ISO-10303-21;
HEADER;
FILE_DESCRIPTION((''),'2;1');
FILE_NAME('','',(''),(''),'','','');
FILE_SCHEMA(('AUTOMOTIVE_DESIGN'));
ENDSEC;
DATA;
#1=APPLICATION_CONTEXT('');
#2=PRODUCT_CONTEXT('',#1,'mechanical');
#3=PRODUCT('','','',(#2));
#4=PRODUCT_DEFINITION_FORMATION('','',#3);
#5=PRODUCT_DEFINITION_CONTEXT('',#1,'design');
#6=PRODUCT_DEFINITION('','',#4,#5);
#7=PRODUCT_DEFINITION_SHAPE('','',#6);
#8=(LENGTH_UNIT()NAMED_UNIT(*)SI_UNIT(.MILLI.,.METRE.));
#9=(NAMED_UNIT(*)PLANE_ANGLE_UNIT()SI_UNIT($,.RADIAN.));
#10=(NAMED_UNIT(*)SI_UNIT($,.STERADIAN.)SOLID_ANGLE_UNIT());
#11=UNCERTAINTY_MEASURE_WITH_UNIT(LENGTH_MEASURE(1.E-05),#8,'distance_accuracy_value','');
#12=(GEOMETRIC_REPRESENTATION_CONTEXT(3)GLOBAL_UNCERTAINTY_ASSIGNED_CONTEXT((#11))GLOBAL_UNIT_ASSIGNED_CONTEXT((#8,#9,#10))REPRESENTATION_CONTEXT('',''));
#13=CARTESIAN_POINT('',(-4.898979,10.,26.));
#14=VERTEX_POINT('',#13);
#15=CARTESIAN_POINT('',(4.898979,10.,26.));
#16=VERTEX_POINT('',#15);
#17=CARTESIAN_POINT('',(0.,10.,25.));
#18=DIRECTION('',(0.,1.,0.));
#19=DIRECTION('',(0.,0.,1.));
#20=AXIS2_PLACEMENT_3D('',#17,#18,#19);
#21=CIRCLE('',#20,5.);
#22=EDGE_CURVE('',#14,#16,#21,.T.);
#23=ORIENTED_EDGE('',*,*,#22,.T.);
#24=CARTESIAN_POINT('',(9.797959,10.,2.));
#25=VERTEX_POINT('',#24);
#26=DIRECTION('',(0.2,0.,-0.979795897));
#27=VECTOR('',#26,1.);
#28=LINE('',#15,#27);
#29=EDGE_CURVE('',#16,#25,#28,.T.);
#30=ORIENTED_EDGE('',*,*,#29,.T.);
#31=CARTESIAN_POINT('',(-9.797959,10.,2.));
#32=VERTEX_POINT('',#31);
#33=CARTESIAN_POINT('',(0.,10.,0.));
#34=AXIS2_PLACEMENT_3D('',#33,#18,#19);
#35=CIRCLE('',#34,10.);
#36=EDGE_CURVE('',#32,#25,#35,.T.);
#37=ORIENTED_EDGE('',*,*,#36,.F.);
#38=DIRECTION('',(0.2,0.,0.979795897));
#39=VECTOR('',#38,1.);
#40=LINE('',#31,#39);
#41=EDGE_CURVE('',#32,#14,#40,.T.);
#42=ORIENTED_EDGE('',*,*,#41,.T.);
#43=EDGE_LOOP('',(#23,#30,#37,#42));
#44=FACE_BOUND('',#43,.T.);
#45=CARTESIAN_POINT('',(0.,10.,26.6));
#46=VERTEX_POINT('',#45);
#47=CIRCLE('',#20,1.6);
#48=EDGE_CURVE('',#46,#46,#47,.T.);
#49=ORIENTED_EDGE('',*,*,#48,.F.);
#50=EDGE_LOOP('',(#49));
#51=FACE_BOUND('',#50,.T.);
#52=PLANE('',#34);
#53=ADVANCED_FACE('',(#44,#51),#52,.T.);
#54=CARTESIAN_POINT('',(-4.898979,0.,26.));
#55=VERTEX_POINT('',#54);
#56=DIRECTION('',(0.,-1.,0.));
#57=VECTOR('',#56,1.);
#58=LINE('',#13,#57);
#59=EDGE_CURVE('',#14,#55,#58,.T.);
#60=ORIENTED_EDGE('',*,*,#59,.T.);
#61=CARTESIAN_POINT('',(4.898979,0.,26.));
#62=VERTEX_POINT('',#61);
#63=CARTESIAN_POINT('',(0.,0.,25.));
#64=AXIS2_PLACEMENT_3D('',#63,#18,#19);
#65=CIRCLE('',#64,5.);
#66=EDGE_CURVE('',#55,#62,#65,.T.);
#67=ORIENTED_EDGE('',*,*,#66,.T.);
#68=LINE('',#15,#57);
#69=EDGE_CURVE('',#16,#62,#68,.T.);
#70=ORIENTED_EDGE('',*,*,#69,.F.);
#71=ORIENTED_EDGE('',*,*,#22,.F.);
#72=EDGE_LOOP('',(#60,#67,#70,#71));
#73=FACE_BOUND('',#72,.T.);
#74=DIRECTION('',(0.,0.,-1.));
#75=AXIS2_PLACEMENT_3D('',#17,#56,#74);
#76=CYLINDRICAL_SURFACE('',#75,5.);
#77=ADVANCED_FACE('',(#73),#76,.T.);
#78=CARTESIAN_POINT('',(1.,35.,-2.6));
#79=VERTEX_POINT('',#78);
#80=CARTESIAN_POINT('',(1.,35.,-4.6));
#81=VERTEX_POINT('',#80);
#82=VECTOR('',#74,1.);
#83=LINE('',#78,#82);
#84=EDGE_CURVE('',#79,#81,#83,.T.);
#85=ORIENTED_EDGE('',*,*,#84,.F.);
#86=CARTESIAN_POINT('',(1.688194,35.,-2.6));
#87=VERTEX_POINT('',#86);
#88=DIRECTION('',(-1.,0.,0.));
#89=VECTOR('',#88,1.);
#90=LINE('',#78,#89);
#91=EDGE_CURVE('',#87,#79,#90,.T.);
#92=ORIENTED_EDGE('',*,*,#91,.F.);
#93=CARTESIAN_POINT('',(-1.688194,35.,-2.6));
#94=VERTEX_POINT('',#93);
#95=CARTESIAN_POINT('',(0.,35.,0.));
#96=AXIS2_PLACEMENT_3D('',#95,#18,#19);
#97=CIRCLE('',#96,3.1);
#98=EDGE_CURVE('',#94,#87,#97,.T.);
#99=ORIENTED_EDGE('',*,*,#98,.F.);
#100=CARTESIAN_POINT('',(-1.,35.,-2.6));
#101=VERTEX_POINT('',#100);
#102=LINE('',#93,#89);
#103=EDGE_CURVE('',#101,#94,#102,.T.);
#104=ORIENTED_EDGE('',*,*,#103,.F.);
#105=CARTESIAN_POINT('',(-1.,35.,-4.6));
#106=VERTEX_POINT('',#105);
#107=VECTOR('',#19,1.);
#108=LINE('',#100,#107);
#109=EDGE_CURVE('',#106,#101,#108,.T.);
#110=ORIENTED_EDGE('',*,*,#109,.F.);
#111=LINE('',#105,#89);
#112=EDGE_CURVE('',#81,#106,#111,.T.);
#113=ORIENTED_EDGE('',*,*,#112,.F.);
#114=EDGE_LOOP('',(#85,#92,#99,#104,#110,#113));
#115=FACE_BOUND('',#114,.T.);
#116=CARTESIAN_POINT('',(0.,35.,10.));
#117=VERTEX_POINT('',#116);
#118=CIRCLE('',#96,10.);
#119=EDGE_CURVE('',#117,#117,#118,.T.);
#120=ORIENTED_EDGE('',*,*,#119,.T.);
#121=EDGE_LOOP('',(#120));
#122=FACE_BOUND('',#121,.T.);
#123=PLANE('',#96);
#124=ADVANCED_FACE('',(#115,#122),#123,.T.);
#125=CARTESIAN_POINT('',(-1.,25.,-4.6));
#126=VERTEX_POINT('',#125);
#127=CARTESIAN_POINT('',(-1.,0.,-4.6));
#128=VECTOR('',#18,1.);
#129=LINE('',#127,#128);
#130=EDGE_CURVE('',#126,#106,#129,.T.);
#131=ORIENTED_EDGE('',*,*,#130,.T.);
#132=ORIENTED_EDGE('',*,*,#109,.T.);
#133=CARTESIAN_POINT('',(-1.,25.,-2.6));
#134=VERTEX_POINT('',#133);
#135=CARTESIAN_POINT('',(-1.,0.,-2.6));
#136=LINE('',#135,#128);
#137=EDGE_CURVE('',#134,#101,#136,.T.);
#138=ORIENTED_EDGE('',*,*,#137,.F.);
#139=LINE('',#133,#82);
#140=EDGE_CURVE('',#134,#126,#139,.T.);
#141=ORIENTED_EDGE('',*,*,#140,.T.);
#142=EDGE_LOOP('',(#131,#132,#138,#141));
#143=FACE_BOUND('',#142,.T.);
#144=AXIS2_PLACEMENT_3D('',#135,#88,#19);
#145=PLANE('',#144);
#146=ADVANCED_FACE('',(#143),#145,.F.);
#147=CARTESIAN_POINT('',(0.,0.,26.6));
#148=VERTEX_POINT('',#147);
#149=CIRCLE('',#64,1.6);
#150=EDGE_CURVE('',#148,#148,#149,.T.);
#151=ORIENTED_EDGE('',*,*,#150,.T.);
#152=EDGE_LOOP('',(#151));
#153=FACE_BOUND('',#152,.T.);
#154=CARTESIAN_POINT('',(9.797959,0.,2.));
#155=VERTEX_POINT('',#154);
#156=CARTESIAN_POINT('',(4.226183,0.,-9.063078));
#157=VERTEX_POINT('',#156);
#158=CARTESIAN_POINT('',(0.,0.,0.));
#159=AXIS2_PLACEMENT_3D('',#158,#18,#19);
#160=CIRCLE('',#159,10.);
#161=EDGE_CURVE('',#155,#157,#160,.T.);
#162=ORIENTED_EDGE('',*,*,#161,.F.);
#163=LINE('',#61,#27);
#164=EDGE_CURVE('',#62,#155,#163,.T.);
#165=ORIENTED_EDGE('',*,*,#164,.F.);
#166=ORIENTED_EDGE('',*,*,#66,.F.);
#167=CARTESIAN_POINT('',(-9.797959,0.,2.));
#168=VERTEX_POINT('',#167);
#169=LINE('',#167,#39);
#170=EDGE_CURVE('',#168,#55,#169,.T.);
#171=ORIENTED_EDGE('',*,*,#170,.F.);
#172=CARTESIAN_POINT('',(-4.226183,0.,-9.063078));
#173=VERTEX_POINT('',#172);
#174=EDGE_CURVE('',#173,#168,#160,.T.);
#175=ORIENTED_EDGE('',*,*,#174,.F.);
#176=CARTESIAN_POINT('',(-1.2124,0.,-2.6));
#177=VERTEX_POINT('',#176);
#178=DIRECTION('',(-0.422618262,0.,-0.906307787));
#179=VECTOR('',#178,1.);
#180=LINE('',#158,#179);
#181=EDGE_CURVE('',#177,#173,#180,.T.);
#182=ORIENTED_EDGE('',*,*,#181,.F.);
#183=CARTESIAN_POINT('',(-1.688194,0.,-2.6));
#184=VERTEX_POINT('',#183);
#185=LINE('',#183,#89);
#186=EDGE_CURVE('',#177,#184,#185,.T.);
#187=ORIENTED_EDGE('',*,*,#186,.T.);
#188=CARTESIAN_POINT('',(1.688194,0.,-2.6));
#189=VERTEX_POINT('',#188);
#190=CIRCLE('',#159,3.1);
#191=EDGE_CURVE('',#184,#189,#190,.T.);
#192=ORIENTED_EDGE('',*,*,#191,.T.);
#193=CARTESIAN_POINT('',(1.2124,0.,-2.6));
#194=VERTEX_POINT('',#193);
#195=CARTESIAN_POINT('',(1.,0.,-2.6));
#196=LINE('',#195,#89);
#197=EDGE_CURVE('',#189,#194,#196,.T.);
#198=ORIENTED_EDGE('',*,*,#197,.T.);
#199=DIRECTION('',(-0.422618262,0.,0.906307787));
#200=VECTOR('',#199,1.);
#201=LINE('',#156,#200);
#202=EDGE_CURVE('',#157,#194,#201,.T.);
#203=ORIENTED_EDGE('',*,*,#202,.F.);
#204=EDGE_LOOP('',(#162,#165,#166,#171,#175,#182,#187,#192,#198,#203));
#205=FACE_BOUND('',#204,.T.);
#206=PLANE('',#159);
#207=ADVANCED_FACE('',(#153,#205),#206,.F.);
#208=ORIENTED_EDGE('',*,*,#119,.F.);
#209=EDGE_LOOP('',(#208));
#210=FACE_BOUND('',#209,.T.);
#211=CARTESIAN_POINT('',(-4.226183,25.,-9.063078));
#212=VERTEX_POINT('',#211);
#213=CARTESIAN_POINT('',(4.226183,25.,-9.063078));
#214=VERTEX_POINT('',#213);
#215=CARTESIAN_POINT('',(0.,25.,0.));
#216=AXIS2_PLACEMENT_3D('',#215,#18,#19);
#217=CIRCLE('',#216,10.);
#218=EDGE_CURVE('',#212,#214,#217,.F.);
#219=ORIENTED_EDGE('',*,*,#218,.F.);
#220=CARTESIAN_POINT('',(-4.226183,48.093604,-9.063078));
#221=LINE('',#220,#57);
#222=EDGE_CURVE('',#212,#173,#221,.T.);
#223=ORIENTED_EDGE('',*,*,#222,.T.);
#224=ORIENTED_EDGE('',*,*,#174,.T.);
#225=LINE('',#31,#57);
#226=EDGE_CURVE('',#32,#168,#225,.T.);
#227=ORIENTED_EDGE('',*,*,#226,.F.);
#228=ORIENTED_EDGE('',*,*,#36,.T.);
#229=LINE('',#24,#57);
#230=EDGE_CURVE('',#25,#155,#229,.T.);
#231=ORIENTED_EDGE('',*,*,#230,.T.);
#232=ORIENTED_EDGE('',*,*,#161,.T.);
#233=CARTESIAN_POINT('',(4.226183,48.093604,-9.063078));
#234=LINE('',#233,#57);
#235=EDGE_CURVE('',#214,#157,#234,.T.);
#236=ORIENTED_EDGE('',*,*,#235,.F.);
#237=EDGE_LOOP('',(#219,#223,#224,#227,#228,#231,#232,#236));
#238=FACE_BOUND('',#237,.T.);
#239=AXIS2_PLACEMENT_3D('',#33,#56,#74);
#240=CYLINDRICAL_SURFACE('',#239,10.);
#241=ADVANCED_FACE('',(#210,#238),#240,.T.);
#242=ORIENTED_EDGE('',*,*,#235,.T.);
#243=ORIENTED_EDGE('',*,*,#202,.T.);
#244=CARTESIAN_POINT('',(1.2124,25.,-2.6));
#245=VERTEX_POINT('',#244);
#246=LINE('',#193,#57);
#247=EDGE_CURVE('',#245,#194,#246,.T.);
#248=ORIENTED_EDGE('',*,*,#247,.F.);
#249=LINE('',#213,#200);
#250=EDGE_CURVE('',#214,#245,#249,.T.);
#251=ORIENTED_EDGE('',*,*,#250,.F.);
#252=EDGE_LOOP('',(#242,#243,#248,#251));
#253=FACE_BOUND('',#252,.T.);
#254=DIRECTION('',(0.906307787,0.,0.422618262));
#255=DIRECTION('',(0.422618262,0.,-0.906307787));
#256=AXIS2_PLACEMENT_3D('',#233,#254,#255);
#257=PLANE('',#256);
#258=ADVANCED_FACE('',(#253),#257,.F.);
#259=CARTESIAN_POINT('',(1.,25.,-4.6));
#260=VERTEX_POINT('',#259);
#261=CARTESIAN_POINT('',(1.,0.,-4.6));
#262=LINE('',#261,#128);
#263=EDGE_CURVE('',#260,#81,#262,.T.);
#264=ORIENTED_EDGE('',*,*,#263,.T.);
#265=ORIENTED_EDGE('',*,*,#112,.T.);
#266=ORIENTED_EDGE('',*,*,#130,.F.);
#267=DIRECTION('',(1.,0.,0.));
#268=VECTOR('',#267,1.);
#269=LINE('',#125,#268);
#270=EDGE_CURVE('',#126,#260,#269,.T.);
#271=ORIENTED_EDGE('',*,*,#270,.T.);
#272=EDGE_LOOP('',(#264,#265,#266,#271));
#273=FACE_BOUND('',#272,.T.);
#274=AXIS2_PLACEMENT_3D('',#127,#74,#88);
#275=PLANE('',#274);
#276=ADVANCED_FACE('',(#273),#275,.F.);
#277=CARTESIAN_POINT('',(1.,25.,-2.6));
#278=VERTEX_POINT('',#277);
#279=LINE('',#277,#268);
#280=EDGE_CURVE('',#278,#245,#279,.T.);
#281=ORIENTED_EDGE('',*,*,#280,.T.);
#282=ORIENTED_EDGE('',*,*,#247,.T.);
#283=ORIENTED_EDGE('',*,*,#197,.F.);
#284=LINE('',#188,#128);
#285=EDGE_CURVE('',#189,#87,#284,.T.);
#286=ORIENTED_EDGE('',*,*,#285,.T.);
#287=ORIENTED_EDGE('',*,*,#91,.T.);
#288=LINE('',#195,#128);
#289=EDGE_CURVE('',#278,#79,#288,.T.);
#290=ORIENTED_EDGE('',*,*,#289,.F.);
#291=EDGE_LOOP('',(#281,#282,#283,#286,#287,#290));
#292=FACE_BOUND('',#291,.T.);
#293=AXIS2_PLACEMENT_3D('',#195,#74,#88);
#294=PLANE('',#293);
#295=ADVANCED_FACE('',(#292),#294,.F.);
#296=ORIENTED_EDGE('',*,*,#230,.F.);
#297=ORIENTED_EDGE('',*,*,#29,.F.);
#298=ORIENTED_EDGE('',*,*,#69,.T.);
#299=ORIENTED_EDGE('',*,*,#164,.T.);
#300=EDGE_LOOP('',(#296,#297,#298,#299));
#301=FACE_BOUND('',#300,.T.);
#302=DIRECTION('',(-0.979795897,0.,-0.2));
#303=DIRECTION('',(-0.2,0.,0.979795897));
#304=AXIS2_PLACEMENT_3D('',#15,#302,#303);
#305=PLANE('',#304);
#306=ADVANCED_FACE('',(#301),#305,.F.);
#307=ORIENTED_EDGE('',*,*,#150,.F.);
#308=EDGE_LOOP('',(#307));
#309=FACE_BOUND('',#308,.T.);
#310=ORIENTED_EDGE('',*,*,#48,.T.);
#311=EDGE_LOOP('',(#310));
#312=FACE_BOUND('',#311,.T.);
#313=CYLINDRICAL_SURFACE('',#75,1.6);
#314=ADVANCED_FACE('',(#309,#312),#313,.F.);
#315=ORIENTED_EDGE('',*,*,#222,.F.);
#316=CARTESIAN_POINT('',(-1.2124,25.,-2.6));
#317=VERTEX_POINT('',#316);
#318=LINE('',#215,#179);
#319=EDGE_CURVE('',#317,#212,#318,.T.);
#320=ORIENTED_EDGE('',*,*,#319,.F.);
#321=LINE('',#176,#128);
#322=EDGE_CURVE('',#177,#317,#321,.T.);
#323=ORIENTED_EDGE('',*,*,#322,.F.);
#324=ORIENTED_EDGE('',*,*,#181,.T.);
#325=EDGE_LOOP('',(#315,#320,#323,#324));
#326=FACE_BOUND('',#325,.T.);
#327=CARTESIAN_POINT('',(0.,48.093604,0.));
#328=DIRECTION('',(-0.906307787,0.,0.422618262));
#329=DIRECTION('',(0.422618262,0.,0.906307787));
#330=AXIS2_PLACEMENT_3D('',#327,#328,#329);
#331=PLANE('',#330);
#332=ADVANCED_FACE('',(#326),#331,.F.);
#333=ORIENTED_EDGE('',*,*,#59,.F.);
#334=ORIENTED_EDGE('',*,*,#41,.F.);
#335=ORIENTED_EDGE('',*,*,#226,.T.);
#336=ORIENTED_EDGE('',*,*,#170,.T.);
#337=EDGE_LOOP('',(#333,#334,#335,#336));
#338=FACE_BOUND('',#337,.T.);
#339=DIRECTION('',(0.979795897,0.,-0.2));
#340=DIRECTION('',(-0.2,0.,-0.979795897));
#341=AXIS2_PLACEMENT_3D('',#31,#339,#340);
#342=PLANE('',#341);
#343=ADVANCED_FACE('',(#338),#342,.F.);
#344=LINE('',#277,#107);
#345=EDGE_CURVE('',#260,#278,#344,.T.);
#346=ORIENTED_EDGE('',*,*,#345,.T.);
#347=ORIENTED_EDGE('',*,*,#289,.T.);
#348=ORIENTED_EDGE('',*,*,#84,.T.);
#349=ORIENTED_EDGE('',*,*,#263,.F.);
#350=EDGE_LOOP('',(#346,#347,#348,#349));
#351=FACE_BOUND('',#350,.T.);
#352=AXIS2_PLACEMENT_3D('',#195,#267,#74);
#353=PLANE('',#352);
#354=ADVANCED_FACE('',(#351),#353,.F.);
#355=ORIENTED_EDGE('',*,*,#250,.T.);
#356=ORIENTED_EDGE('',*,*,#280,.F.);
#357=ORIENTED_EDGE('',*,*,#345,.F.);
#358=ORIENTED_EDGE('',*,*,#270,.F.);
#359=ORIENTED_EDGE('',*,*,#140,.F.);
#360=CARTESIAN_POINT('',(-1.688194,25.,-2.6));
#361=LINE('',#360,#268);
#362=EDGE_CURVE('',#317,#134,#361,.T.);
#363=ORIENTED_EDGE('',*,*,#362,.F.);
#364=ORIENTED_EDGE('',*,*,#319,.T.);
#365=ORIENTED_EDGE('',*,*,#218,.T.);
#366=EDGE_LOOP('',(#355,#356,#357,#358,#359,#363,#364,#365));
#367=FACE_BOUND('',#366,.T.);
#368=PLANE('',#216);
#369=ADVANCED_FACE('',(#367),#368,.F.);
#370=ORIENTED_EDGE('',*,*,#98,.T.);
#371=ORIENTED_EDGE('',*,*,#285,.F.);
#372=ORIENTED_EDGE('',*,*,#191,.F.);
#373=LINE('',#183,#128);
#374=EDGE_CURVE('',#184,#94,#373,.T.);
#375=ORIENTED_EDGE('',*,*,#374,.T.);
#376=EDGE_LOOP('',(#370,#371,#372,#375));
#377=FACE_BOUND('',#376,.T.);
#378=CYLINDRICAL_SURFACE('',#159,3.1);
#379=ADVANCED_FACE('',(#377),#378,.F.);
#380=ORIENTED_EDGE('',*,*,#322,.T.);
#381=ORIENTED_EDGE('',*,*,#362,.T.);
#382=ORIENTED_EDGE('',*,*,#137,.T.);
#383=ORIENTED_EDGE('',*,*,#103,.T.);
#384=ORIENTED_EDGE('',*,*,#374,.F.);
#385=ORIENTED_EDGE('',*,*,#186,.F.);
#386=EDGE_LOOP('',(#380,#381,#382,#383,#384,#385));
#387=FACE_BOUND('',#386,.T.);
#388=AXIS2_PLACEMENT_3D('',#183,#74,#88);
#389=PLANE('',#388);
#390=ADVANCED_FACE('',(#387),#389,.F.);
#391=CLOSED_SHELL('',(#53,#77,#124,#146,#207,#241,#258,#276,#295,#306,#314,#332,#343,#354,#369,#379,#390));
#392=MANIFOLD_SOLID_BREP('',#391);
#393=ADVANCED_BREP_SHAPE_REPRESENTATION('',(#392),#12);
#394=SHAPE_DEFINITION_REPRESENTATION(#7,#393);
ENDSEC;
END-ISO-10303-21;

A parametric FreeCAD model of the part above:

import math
import FreeCAD as App
import Part
import Sketcher
Q = App.Units.Quantity

doc = App.newDocument("Part")
body = doc.addObject("PartDesign::Body", "Body")

# Sketch on XZ plane
sketch1 = body.newObject("Sketcher::SketchObject", "Sketch")
sketch1.AttachmentSupport = (doc.getObject("XZ_Plane"), [""])
sketch1.MapMode = "FlatFace"
sketch1.addGeometry([
    Part.LineSegment(App.Vector(-9.8, 2, 0), App.Vector(-4.9, 26, 0)),  # 0
    Part.ArcOfCircle(Part.Circle(App.Vector(0, 25, 0), App.Vector(0, 0, 1), 5), math.radians(12), math.radians(168)),  # 1
    Part.LineSegment(App.Vector(4.9, 26, 0), App.Vector(9.8, 2, 0)),  # 2
    Part.ArcOfCircle(Part.Circle(App.Vector(0, 0, 0), App.Vector(0, 0, 1), 10), math.radians(168), math.radians(372)),  # 3
    Part.Circle(App.Vector(0, 25, 0), App.Vector(0, 0, 1), 1.6),  # 4
], False)
sketch1.addConstraint([
    Sketcher.Constraint("Tangent", 0, 2, 1, 2),
    Sketcher.Constraint("Tangent", 1, 1, 2, 1),
    Sketcher.Constraint("Tangent", 2, 2, 3, 2),
    Sketcher.Constraint("Tangent", 3, 1, 0, 1),
    Sketcher.Constraint("Coincident", 3, 3, -1, 1),
    Sketcher.Constraint("Coincident", 4, 3, 1, 3),
    Sketcher.Constraint("PointOnObject", 1, 3, -2),
    Sketcher.Constraint("Radius", 1, Q("5 mm")),
    Sketcher.Constraint("Radius", 3, Q("10 mm")),
    Sketcher.Constraint("Diameter", 4, Q("3.2 mm")),
    Sketcher.Constraint("DistanceY", -1, 1, 1, 3, Q("25 mm")),
])
pad1 = body.newObject("PartDesign::Pad", "Pad")
pad1.Profile = sketch1
pad1.Length = 10
pad1.Reversed = True

# Sketch on XZ plane
sketch2 = body.newObject("Sketcher::SketchObject", "Sketch001")
sketch2.AttachmentSupport = (doc.getObject("XZ_Plane"), [""])
sketch2.MapMode = "FlatFace"
sketch2.AttachmentOffset = App.Placement(App.Vector(0, 0, -10), App.Rotation())
sketch2.addGeometry(Part.Circle(App.Vector(0, 0, 0), App.Vector(0, 0, 1), 10), False)
sketch2.addConstraint([
    Sketcher.Constraint("Coincident", 0, 3, -1, 1),
    Sketcher.Constraint("Diameter", 0, Q("20 mm")),
])
pad2 = body.newObject("PartDesign::Pad", "Pad001")
pad2.Profile = sketch2
pad2.Length = 25
pad2.Reversed = True

# Sketch on XZ plane
sketch3 = body.newObject("Sketcher::SketchObject", "Sketch002")
sketch3.AttachmentSupport = (doc.getObject("XZ_Plane"), [""])
sketch3.MapMode = "FlatFace"
sketch3.AttachmentOffset = App.Placement(App.Vector(0, 0, -10), App.Rotation())
sketch3.addGeometry([
    Part.LineSegment(App.Vector(-1, -2.6, 0), App.Vector(-1.7, -2.6, 0)),  # 0
    Part.ArcOfCircle(Part.Circle(App.Vector(0, 0, 0), App.Vector(0, 0, 1), 3.1), math.radians(-57), math.radians(237)),  # 1
    Part.LineSegment(App.Vector(1.7, -2.6, 0), App.Vector(1, -2.6, 0)),  # 2
    Part.LineSegment(App.Vector(1, -2.6, 0), App.Vector(1, -4.6, 0)),  # 3
    Part.LineSegment(App.Vector(1, -4.6, 0), App.Vector(-1, -4.6, 0)),  # 4
    Part.LineSegment(App.Vector(-1, -4.6, 0), App.Vector(-1, -2.6, 0)),  # 5
], False)
sketch3.addConstraint([
    Sketcher.Constraint("Coincident", 0, 2, 1, 2),
    Sketcher.Constraint("Coincident", 1, 1, 2, 1),
    Sketcher.Constraint("Coincident", 2, 2, 3, 1),
    Sketcher.Constraint("Coincident", 3, 2, 4, 1),
    Sketcher.Constraint("Coincident", 4, 2, 5, 1),
    Sketcher.Constraint("Coincident", 5, 2, 0, 1),
    Sketcher.Constraint("Horizontal", 0),
    Sketcher.Constraint("Horizontal", 2),
    Sketcher.Constraint("Vertical", 3),
    Sketcher.Constraint("Horizontal", 4),
    Sketcher.Constraint("Vertical", 5),
    Sketcher.Constraint("Coincident", 1, 3, -1, 1),
    Sketcher.Constraint("Symmetric", 2, 2, 5, 2, -2),
    Sketcher.Constraint("Equal", 4, 3),
    Sketcher.Constraint("Radius", 1, Q("3.1 mm")),
    Sketcher.Constraint("DistanceX", 4, 2, 4, 1, Q("2 mm")),
    Sketcher.Constraint("DistanceY", 0, 2, -1, 1, Q("2.6 mm")),
])
pocket1 = body.newObject("PartDesign::Pocket", "Pocket")
pocket1.Profile = sketch3
pocket1.Type = "ThroughAll"
pocket1.Midplane = True

# Sketch on XZ plane
sketch4 = body.newObject("Sketcher::SketchObject", "Sketch003")
sketch4.AttachmentSupport = (doc.getObject("XZ_Plane"), [""])
sketch4.MapMode = "FlatFace"
sketch4.addGeometry([
    Part.LineSegment(App.Vector(4, -9, 0), App.Vector(0, 0, 0)),
    Part.LineSegment(App.Vector(0, 0, 0), App.Vector(-4, -9, 0)),
    Part.ArcOfCircle(Part.Circle(App.Vector(0, 0, 0), App.Vector(0, 0, 1), 10), math.radians(-115), math.radians(-65)),
], False)
sketch4.addConstraint([
    Sketcher.Constraint("Coincident", 0, 2, 1, 1),
    Sketcher.Constraint("Coincident", 1, 2, 2, 1),
    Sketcher.Constraint("Coincident", 2, 2, 0, 1),
    Sketcher.Constraint("Coincident", 2, 3, -1, 1),
    Sketcher.Constraint("Coincident", 0, 2, -1, 1),
    Sketcher.Constraint("Horizontal", 1, 2, 2, 2),
    Sketcher.Constraint("Radius", 2, Q("10 mm")),
    Sketcher.Constraint("Angle", 0, Q("115 deg")),
])
pocket2 = body.newObject("PartDesign::Pocket", "Pocket001")
pocket2.Profile = sketch4
pocket2.Length = 25

doc.recompute()
